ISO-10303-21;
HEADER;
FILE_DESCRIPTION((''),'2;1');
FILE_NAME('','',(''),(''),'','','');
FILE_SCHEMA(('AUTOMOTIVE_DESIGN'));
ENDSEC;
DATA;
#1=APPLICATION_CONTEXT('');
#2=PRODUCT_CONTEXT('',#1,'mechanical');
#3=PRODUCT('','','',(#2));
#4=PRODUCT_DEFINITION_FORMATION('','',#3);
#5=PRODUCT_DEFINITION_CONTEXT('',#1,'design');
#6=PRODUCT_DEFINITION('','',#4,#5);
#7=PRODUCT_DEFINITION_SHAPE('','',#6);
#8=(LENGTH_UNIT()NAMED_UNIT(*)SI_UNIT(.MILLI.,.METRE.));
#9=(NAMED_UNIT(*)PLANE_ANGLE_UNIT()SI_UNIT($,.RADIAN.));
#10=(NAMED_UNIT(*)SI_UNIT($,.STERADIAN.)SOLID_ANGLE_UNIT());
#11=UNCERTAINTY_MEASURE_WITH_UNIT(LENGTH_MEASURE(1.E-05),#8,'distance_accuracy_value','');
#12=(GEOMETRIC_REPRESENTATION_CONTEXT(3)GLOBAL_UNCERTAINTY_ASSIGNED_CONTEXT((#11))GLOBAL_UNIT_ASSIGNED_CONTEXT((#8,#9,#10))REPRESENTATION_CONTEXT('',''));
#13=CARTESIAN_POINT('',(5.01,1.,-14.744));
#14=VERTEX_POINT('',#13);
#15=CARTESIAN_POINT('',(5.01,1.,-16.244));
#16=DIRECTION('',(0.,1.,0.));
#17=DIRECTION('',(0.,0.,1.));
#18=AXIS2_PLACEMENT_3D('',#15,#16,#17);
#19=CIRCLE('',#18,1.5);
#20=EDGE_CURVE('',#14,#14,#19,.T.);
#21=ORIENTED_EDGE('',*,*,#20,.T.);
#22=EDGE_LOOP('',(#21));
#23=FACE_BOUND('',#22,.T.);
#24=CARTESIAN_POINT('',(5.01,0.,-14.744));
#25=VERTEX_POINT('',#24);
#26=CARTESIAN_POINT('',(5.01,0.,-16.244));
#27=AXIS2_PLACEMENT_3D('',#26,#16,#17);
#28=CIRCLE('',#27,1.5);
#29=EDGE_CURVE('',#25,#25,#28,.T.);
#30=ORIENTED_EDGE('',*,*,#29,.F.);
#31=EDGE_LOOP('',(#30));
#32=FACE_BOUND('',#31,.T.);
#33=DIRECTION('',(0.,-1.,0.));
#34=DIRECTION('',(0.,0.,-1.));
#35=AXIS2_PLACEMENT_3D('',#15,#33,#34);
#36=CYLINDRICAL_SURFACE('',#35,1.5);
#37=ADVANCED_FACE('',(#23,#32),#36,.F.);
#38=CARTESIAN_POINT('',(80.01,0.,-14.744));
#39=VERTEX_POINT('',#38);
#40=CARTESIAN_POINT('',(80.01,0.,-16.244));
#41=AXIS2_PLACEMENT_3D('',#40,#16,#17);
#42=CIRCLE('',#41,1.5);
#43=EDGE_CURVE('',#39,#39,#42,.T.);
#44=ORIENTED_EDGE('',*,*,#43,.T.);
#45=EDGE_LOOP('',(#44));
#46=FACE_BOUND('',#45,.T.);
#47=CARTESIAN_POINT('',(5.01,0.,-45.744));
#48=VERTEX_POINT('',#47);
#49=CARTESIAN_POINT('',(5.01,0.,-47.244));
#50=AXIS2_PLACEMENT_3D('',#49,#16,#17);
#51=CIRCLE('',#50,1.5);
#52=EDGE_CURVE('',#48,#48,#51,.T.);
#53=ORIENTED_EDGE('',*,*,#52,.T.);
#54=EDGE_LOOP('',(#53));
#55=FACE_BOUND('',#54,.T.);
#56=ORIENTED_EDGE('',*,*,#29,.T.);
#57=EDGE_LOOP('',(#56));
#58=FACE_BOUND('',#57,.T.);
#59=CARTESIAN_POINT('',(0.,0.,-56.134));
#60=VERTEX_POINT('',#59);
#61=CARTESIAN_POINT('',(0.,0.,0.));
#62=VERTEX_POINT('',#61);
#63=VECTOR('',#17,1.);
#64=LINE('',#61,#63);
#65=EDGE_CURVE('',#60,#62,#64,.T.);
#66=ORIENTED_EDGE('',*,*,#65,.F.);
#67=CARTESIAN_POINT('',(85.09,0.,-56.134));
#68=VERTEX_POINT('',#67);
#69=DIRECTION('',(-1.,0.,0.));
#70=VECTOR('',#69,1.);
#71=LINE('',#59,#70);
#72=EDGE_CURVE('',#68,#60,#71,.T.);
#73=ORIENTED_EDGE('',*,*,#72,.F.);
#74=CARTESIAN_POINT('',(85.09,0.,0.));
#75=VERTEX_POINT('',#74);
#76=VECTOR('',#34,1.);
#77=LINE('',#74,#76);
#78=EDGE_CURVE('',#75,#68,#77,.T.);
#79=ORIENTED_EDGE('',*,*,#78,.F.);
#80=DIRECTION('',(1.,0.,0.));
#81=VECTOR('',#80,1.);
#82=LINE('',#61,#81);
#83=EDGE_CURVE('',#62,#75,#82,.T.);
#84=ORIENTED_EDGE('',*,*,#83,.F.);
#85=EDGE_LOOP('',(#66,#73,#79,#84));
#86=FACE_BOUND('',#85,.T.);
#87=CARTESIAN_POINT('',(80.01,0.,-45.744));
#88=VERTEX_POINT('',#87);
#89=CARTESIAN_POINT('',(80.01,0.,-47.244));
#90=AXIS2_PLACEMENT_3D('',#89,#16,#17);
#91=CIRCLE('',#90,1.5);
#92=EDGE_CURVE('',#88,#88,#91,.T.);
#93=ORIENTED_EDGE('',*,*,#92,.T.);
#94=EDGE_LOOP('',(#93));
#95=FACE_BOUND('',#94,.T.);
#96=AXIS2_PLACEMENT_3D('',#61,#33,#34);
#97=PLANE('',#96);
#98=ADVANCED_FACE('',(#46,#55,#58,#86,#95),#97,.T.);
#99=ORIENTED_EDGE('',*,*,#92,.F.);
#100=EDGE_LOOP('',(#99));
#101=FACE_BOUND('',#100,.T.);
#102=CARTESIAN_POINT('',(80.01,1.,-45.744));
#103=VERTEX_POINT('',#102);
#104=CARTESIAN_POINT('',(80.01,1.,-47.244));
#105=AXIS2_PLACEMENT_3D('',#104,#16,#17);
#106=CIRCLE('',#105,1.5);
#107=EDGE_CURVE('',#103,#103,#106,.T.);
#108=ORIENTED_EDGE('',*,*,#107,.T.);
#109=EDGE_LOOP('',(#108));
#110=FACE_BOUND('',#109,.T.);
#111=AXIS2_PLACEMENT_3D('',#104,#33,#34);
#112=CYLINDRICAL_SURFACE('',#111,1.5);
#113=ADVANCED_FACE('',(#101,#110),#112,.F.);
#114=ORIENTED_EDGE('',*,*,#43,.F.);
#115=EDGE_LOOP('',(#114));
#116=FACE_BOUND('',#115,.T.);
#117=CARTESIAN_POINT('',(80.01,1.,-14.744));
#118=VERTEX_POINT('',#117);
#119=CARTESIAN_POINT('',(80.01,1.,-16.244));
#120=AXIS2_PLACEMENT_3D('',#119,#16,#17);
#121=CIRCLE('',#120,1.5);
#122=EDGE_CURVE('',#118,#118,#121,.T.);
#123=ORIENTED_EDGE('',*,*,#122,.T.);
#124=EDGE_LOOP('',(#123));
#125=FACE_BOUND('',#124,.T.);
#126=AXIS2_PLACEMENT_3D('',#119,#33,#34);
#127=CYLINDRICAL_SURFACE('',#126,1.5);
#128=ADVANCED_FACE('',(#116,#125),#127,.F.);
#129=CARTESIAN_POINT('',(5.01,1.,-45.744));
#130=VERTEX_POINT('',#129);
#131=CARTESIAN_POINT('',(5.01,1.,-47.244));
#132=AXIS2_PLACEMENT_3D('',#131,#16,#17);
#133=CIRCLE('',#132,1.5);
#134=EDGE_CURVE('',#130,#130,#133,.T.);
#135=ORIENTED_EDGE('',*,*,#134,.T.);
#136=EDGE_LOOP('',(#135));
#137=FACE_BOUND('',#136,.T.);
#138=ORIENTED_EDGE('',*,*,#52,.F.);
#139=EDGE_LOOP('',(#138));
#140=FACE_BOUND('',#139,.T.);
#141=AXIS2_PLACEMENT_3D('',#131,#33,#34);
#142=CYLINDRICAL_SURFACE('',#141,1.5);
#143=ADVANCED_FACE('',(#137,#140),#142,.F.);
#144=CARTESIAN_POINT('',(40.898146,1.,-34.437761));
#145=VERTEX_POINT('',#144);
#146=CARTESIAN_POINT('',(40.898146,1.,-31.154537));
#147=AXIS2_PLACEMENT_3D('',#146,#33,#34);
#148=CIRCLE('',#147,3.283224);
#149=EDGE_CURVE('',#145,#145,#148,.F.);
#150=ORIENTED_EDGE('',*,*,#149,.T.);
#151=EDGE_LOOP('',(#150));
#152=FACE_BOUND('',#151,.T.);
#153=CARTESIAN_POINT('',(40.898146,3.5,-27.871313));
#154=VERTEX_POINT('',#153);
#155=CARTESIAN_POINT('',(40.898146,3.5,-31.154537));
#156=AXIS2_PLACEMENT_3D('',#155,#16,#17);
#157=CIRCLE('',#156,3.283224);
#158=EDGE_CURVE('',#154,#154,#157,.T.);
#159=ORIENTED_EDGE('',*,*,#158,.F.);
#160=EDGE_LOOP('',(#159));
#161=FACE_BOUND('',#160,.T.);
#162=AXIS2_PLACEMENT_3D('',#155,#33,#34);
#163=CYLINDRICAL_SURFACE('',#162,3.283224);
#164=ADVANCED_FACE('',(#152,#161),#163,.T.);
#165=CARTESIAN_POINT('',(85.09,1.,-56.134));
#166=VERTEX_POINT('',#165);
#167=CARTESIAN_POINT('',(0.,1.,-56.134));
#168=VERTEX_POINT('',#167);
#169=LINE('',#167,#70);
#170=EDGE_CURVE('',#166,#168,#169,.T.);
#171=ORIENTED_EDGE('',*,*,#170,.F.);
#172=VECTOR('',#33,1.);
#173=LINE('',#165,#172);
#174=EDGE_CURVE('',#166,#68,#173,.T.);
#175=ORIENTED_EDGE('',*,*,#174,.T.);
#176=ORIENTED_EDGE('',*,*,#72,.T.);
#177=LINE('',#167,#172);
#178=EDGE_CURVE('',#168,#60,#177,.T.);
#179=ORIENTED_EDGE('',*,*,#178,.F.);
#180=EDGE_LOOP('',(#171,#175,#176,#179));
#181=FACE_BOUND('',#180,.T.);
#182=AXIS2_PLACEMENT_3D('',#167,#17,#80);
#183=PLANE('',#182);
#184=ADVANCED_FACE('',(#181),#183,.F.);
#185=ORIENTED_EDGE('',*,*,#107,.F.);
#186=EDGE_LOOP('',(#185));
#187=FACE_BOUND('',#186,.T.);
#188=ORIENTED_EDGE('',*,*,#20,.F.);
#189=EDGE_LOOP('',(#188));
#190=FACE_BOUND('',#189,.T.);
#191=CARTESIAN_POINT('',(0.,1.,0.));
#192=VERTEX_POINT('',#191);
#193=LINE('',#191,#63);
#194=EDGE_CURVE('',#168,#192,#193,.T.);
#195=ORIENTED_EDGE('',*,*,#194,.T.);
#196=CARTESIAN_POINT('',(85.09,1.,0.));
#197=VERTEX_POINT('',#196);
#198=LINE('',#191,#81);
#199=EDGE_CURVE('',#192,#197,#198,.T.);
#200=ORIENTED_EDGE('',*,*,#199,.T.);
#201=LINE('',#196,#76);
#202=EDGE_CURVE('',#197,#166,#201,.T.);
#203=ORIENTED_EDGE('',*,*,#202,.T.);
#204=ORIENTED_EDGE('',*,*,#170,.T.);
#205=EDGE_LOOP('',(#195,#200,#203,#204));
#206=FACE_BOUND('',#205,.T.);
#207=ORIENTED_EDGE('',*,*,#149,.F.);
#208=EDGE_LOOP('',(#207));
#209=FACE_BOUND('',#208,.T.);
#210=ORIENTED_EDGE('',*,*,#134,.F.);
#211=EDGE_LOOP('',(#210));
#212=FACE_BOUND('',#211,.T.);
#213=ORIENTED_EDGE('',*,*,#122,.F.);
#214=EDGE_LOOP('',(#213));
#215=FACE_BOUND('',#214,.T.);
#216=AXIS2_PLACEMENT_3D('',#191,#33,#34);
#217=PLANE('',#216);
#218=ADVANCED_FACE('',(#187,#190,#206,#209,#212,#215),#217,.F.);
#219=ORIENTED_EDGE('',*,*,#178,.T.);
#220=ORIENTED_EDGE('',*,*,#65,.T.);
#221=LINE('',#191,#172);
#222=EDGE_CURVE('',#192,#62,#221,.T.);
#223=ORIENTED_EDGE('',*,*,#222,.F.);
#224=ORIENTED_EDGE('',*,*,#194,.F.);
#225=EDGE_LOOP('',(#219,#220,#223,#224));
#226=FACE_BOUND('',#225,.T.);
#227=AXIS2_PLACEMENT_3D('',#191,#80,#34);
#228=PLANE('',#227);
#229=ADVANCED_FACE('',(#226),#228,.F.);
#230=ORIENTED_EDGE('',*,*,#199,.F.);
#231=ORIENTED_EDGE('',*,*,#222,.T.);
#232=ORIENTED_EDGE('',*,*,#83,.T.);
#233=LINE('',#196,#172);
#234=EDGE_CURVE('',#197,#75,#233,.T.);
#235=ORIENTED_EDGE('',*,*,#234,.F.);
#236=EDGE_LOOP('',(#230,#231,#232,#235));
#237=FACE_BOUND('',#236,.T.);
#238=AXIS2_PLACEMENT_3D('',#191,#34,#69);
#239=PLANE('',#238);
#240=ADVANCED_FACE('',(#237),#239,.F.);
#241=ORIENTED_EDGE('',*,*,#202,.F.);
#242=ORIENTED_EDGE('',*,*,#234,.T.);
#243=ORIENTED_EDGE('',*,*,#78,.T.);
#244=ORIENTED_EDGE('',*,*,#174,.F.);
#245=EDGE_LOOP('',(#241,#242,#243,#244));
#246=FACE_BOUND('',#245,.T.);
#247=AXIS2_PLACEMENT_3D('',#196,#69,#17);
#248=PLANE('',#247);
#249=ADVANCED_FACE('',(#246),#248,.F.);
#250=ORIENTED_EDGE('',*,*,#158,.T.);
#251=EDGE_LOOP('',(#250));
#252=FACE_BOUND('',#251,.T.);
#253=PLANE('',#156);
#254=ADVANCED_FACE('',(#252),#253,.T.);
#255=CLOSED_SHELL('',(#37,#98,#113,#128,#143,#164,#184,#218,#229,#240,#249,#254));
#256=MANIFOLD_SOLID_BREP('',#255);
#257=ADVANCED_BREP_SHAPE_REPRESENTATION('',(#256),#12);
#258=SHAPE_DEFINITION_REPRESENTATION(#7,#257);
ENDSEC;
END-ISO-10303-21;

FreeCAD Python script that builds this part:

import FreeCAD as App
import Part
import Sketcher

V = App.Vector

doc = App.newDocument("Part")
body = doc.addObject("PartDesign::Body", "Body")

# Sketch on XZ plane
sketch1 = body.newObject("Sketcher::SketchObject", "Sketch")
sketch1.AttachmentSupport = (doc.getObject("XZ_Plane"), [""])
sketch1.MapMode = "FlatFace"
sketch1.addGeometry([
    Part.LineSegment(V(0, -56.1, 0), V(0, 0, 0)),  # 0
    Part.LineSegment(V(0, 0, 0), V(85.1, 0, 0)),  # 1
    Part.LineSegment(V(85.1, 0, 0), V(85.1, -56.1, 0)),  # 2
    Part.LineSegment(V(85.1, -56.1, 0), V(0, -56.1, 0)),  # 3
    Part.Circle(V(5, -16.2, 0), V(0, 0, 1), 1.5),  # 4
    Part.Circle(V(80, -16.2, 0), V(0, 0, 1), 1.5),  # 5
    Part.Circle(V(5, -47.2, 0), V(0, 0, 1), 1.5),  # 6
    Part.Circle(V(80, -47.2, 0), V(0, 0, 1), 1.5),  # 7
], False)
sketch1.addConstraint([
    Sketcher.Constraint("Coincident", 0, 2, 1, 1),
    Sketcher.Constraint("Coincident", 1, 2, 2, 1),
    Sketcher.Constraint("Coincident", 2, 2, 3, 1),
    Sketcher.Constraint("Coincident", 3, 2, 0, 1),
    Sketcher.Constraint("Vertical", 0),
    Sketcher.Constraint("Horizontal", 1),
    Sketcher.Constraint("Vertical", 2),
    Sketcher.Constraint("Horizontal", 3),
    Sketcher.Constraint("Coincident", 0, 2, -1, 1),
    Sketcher.Constraint("Equal", 4, 5),
    Sketcher.Constraint("Equal", 5, 6),
    Sketcher.Constraint("Equal", 6, 7),
    Sketcher.Constraint("Horizontal", 4, 3, 5, 3),
    Sketcher.Constraint("Horizontal", 6, 3, 7, 3),
    Sketcher.Constraint("Vertical", 4, 3, 6, 3),
    Sketcher.Constraint("Vertical", 5, 3, 7, 3),
    Sketcher.Constraint("Diameter", 4, 3.0),
    Sketcher.Constraint("DistanceX", 4, 3, 5, 3, 75.0),
    Sketcher.Constraint("DistanceY", 6, 3, 4, 3, 31.0),
    Sketcher.Constraint("DistanceX", 1, 1, 1, 2, 85.09),
    Sketcher.Constraint("DistanceY", 0, 1, 0, 2, 56.134),
    Sketcher.Constraint("DistanceX", -1, 1, 4, 3, 5.01),
    Sketcher.Constraint("DistanceY", 2, 2, 7, 3, 8.89),
])
pad1 = body.newObject("PartDesign::Pad", "Pad")
pad1.Profile = sketch1
pad1.Length = 1
pad1.Reversed = True

# Sketch on XZ plane
sketch2 = body.newObject("Sketcher::SketchObject", "Sketch001")
sketch2.AttachmentSupport = (doc.getObject("XZ_Plane"), [""])
sketch2.MapMode = "FlatFace"
sketch2.AttachmentOffset = App.Placement(V(0, 0, -1), App.Rotation())
sketch2.addGeometry(Part.Circle(V(40.9, -31.2, 0), V(0, 0, 1), 3.3), False)
sketch2.addConstraint([
    Sketcher.Constraint("Diameter", 0, 6.566448),
    Sketcher.Constraint("DistanceX", -1, 1, 0, 3, 40.898146),
    Sketcher.Constraint("DistanceY", 0, 3, -1, 1, 31.154537),
])
pad2 = body.newObject("PartDesign::Pad", "Pad001")
pad2.Profile = sketch2
pad2.Length = 2.5
pad2.Reversed = True

doc.recompute()
